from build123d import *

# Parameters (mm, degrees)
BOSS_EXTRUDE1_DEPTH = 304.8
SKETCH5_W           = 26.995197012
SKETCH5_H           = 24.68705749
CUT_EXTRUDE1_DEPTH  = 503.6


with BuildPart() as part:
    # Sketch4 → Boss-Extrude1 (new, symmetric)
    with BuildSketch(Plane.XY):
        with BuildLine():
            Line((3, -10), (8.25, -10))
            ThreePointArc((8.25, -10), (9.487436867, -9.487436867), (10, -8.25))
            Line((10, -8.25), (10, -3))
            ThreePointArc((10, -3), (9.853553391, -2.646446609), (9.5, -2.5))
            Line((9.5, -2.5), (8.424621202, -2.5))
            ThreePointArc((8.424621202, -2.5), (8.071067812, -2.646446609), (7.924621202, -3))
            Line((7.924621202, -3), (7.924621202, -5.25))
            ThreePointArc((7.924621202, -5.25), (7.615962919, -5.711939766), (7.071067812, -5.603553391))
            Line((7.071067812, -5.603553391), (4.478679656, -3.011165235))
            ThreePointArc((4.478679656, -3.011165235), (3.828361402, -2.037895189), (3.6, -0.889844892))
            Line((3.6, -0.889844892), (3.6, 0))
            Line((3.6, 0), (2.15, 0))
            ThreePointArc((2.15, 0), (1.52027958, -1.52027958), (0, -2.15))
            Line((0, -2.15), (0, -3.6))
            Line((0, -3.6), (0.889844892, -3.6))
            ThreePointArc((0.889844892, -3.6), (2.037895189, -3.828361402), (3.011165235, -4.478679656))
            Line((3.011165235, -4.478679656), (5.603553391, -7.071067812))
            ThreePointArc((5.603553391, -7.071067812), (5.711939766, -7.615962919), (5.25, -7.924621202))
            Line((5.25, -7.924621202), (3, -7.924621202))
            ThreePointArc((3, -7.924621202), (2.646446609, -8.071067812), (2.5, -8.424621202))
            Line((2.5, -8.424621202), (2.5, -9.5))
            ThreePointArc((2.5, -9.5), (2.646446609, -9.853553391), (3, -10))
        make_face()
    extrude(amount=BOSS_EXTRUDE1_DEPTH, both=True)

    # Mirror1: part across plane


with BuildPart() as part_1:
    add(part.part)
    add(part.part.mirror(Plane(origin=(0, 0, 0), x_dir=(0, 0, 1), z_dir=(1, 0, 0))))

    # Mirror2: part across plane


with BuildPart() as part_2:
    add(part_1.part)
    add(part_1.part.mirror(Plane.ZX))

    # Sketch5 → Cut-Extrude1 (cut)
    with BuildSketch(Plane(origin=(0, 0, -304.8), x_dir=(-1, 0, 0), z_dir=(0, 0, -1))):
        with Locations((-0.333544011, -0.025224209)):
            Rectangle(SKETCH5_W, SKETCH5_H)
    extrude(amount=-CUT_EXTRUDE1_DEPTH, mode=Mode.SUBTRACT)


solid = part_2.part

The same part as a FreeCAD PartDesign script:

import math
import FreeCAD as App
import Part
import Sketcher
Q = App.Units.Quantity

doc = App.newDocument("Part")
body = doc.addObject("PartDesign::Body", "Body")

sketch1 = doc.addObject("Sketcher::SketchObject", "Sketch")
body.addObject(sketch1)
sketch1.AttachmentSupport = (doc.XY_Plane, [""])
sketch1.MapMode = "FlatFace"
sketch1.addGeometry([
    Part.LineSegment(App.Vector(3, -10, 0), App.Vector(8.25, -10, 0)),
    Part.ArcOfCircle(Part.Circle(App.Vector(8.25, -8.25, 0), App.Vector(0, 0, 1), 1.75), math.radians(-90), math.radians(0)),
    Part.LineSegment(App.Vector(10, -8.25, 0), App.Vector(10, -3, 0)),
    Part.ArcOfCircle(Part.Circle(App.Vector(9.5, -3, 0), App.Vector(0, 0, 1), 0.5), math.radians(0), math.radians(90)),
    Part.LineSegment(App.Vector(9.5, -2.5, 0), App.Vector(8.424621, -2.5, 0)),
    Part.ArcOfCircle(Part.Circle(App.Vector(8.424621, -3, 0), App.Vector(0, 0, 1), 0.5), math.radians(90), math.radians(180)),
    Part.LineSegment(App.Vector(7.924621, -3, 0), App.Vector(7.924621, -5.25, 0)),
    Part.ArcOfCircle(Part.Circle(App.Vector(7.424621, -5.25, 0), App.Vector(0, 0, 1), 0.5), math.radians(-135), math.radians(0)),
    Part.LineSegment(App.Vector(7.071068, -5.603553, 0), App.Vector(4.47868, -3.011165, 0)),
    Part.ArcOfCircle(Part.Circle(App.Vector(6.6, -0.889845, 0), App.Vector(0, 0, 1), 3), math.radians(180), math.radians(225)),
    Part.LineSegment(App.Vector(3.6, -0.889845, 0), App.Vector(3.6, 0, 0)),
    Part.LineSegment(App.Vector(3.6, 0, 0), App.Vector(2.15, 0, 0)),
    Part.ArcOfCircle(Part.Circle(App.Vector(0, 0, 0), App.Vector(0, 0, 1), 2.15), math.radians(-90), math.radians(0)),
    Part.LineSegment(App.Vector(0, -2.15, 0), App.Vector(0, -3.6, 0)),
    Part.LineSegment(App.Vector(0, -3.6, 0), App.Vector(0.889845, -3.6, 0)),
    Part.ArcOfCircle(Part.Circle(App.Vector(0.889845, -6.6, 0), App.Vector(0, 0, 1), 3), math.radians(45), math.radians(90)),
    Part.LineSegment(App.Vector(3.011165, -4.47868, 0), App.Vector(5.603553, -7.071068, 0)),
    Part.ArcOfCircle(Part.Circle(App.Vector(5.25, -7.424621, 0), App.Vector(0, 0, 1), 0.5), math.radians(-90), math.radians(45)),
    Part.LineSegment(App.Vector(5.25, -7.924621, 0), App.Vector(3, -7.924621, 0)),
    Part.ArcOfCircle(Part.Circle(App.Vector(3, -8.424621, 0), App.Vector(0, 0, 1), 0.5), math.radians(90), math.radians(180)),
    Part.LineSegment(App.Vector(2.5, -8.424621, 0), App.Vector(2.5, -9.5, 0)),
    Part.ArcOfCircle(Part.Circle(App.Vector(3, -9.5, 0), App.Vector(0, 0, 1), 0.5), math.radians(180), math.radians(270)),
], False)
sketch1.addConstraint([
    Sketcher.Constraint("Tangent", 0, 2, 1, 1),
    Sketcher.Constraint("Tangent", 1, 2, 2, 1),
    Sketcher.Constraint("Tangent", 2, 2, 3, 1),
    Sketcher.Constraint("Tangent", 3, 2, 4, 1),
    Sketcher.Constraint("Tangent", 4, 2, 5, 1),
    Sketcher.Constraint("Tangent", 5, 2, 6, 1),
    Sketcher.Constraint("Tangent", 6, 2, 7, 2),
    Sketcher.Constraint("Tangent", 7, 1, 8, 1),
    Sketcher.Constraint("Tangent", 8, 2, 9, 2),
    Sketcher.Constraint("Tangent", 9, 1, 10, 1),
    Sketcher.Constraint("Coincident", 10, 2, 11, 1),
    Sketcher.Constraint("Coincident", 11, 2, 12, 2),
    Sketcher.Constraint("Coincident", 12, 1, 13, 1),
    Sketcher.Constraint("Coincident", 13, 2, 14, 1),
    Sketcher.Constraint("Tangent", 14, 2, 15, 2),
    Sketcher.Constraint("Tangent", 15, 1, 16, 1),
    Sketcher.Constraint("Tangent", 16, 2, 17, 2),
    Sketcher.Constraint("Tangent", 17, 1, 18, 1),
    Sketcher.Constraint("Tangent", 18, 2, 19, 1),
    Sketcher.Constraint("Tangent", 19, 2, 20, 1),
    Sketcher.Constraint("Tangent", 20, 2, 21, 1),
    Sketcher.Constraint("Tangent", 21, 2, 0, 1),
    Sketcher.Constraint("Horizontal", 0),
    Sketcher.Constraint("Vertical", 2),
    Sketcher.Constraint("Horizontal", 4),
    Sketcher.Constraint("Vertical", 6),
    Sketcher.Constraint("Vertical", 10),
    Sketcher.Constraint("Horizontal", 11),
    Sketcher.Constraint("Vertical", 13),
    Sketcher.Constraint("Horizontal", 14),
    Sketcher.Constraint("Horizontal", 18),
    Sketcher.Constraint("Vertical", 20),
    Sketcher.Constraint("Coincident", 12, 3, -1, 1),
    Sketcher.Constraint("Equal", 3, 5),
    Sketcher.Constraint("Equal", 5, 7),
    Sketcher.Constraint("Equal", 9, 15),
    Sketcher.Constraint("Equal", 7, 17),
    Sketcher.Constraint("Equal", 17, 19),
    Sketcher.Constraint("Equal", 19, 21),
    Sketcher.Constraint("PointOnObject", 10, 2, -1),
    Sketcher.Constraint("PointOnObject", 12, 1, -2),
    Sketcher.Constraint("Parallel", 8, 16),
    Sketcher.Constraint("Equal", 0, 2),
    Sketcher.Constraint("Equal", 18, 6),
    Sketcher.Constraint("Equal", 14, 10),
    Sketcher.Constraint("Equal", 11, 13),
    Sketcher.Constraint("Equal", 4, 20),
    Sketcher.Constraint("Equal", 8, 16),
    Sketcher.Constraint("Radius", 9, Q("3 mm")),
    Sketcher.Constraint("Radius", 3, Q("0.5 mm")),
    Sketcher.Constraint("Radius", 1, Q("1.75 mm")),
    Sketcher.Constraint("Radius", 12, Q("2.15 mm")),
    Sketcher.Constraint("DistanceY", 3, 3, -1, 1, Q("3 mm")),
    Sketcher.Constraint("DistanceY", 0, 2, -1, 1, Q("10 mm")),
    Sketcher.Constraint("DistanceY", 1, 3, 7, 3, Q("3 mm")),
    Sketcher.Constraint("DistanceX", 11, 2, 11, 1, Q("1.45 mm")),
    Sketcher.Constraint("DistanceX", 4, 2, 4, 1, Q("1.075379 mm")),
])
pad1 = doc.addObject("PartDesign::Pad", "Pad")
body.addObject(pad1)
pad1.Profile = sketch1
pad1.Length = 609.6
pad1.Midplane = True
body2 = doc.addObject("PartDesign::Body", "Body001")
doc.recompute()

body2.BaseFeature = body
doc.recompute()

mirroring = doc.addObject("Part::Mirroring", "Mirroring")
mirroring.Source = body
mirroring.Base = App.Vector(0, 0, 0)
mirroring.Normal = App.Vector(1, 0, 0)
body3 = doc.addObject("PartDesign::Body", "Body002")
body3.BaseFeature = mirroring
boolean = doc.addObject("PartDesign::Boolean", "Boolean")
body2.addObject(boolean)
boolean.Type = "Fuse"
boolean.addObjects([body3])
doc.recompute()
body4 = doc.addObject("PartDesign::Body", "Body003")
doc.recompute()

body4.BaseFeature = body2
doc.recompute()

mirroring2 = doc.addObject("Part::Mirroring", "Mirroring001")
mirroring2.Source = body2
mirroring2.Base = App.Vector(0, 0, 0)
mirroring2.Normal = App.Vector(0, 1, 0)
body5 = doc.addObject("PartDesign::Body", "Body004")
body5.BaseFeature = mirroring2
boolean2 = doc.addObject("PartDesign::Boolean", "Boolean001")
body4.addObject(boolean2)
boolean2.Type = "Fuse"
boolean2.addObjects([body5])
doc.recompute()

sketch2 = doc.addObject("Sketcher::SketchObject", "Sketch001")
body4.addObject(sketch2)
sketch2.AttachmentSupport = (doc.getObject("XY_Plane003"), [""])
sketch2.MapMode = "FlatFace"
sketch2.AttachmentOffset = App.Placement(App.Vector(0, 0, -304.8), App.Rotation())
sketch2.addGeometry([
    Part.LineSegment(App.Vector(13.831143, 12.318305, 0), App.Vector(13.831143, -12.368753, 0)),
    Part.LineSegment(App.Vector(13.831143, -12.368753, 0), App.Vector(-13.164054, -12.368753, 0)),
    Part.LineSegment(App.Vector(-13.164054, -12.368753, 0), App.Vector(-13.164054, 12.318305, 0)),
    Part.LineSegment(App.Vector(-13.164054, 12.318305, 0), App.Vector(13.831143, 12.318305, 0)),
], False)
sketch2.addConstraint([
    Sketcher.Constraint("Coincident", 0, 2, 1, 1),
    Sketcher.Constraint("Coincident", 1, 2, 2, 1),
    Sketcher.Constraint("Coincident", 2, 2, 3, 1),
    Sketcher.Constraint("Coincident", 3, 2, 0, 1),
    Sketcher.Constraint("Vertical", 0),
    Sketcher.Constraint("Horizontal", 1),
    Sketcher.Constraint("Vertical", 2),
    Sketcher.Constraint("Horizontal", 3),
    Sketcher.Constraint("DistanceX", 1, 2, 1, 1, Q("26.995197 mm")),
    Sketcher.Constraint("DistanceY", 0, 2, 0, 1, Q("24.687057 mm")),
    Sketcher.Constraint("DistanceX", -1, 1, 0, 2, Q("13.831143 mm")),
    Sketcher.Constraint("DistanceY", 0, 2, -1, 1, Q("12.368753 mm")),
])
pocket1 = doc.addObject("PartDesign::Pocket", "Pocket")
body4.addObject(pocket1)
pocket1.Profile = sketch2
pocket1.Length = 503.6
pocket1.Reversed = True
mirroring.Visibility = False
mirroring2.Visibility = False

doc.recompute()
